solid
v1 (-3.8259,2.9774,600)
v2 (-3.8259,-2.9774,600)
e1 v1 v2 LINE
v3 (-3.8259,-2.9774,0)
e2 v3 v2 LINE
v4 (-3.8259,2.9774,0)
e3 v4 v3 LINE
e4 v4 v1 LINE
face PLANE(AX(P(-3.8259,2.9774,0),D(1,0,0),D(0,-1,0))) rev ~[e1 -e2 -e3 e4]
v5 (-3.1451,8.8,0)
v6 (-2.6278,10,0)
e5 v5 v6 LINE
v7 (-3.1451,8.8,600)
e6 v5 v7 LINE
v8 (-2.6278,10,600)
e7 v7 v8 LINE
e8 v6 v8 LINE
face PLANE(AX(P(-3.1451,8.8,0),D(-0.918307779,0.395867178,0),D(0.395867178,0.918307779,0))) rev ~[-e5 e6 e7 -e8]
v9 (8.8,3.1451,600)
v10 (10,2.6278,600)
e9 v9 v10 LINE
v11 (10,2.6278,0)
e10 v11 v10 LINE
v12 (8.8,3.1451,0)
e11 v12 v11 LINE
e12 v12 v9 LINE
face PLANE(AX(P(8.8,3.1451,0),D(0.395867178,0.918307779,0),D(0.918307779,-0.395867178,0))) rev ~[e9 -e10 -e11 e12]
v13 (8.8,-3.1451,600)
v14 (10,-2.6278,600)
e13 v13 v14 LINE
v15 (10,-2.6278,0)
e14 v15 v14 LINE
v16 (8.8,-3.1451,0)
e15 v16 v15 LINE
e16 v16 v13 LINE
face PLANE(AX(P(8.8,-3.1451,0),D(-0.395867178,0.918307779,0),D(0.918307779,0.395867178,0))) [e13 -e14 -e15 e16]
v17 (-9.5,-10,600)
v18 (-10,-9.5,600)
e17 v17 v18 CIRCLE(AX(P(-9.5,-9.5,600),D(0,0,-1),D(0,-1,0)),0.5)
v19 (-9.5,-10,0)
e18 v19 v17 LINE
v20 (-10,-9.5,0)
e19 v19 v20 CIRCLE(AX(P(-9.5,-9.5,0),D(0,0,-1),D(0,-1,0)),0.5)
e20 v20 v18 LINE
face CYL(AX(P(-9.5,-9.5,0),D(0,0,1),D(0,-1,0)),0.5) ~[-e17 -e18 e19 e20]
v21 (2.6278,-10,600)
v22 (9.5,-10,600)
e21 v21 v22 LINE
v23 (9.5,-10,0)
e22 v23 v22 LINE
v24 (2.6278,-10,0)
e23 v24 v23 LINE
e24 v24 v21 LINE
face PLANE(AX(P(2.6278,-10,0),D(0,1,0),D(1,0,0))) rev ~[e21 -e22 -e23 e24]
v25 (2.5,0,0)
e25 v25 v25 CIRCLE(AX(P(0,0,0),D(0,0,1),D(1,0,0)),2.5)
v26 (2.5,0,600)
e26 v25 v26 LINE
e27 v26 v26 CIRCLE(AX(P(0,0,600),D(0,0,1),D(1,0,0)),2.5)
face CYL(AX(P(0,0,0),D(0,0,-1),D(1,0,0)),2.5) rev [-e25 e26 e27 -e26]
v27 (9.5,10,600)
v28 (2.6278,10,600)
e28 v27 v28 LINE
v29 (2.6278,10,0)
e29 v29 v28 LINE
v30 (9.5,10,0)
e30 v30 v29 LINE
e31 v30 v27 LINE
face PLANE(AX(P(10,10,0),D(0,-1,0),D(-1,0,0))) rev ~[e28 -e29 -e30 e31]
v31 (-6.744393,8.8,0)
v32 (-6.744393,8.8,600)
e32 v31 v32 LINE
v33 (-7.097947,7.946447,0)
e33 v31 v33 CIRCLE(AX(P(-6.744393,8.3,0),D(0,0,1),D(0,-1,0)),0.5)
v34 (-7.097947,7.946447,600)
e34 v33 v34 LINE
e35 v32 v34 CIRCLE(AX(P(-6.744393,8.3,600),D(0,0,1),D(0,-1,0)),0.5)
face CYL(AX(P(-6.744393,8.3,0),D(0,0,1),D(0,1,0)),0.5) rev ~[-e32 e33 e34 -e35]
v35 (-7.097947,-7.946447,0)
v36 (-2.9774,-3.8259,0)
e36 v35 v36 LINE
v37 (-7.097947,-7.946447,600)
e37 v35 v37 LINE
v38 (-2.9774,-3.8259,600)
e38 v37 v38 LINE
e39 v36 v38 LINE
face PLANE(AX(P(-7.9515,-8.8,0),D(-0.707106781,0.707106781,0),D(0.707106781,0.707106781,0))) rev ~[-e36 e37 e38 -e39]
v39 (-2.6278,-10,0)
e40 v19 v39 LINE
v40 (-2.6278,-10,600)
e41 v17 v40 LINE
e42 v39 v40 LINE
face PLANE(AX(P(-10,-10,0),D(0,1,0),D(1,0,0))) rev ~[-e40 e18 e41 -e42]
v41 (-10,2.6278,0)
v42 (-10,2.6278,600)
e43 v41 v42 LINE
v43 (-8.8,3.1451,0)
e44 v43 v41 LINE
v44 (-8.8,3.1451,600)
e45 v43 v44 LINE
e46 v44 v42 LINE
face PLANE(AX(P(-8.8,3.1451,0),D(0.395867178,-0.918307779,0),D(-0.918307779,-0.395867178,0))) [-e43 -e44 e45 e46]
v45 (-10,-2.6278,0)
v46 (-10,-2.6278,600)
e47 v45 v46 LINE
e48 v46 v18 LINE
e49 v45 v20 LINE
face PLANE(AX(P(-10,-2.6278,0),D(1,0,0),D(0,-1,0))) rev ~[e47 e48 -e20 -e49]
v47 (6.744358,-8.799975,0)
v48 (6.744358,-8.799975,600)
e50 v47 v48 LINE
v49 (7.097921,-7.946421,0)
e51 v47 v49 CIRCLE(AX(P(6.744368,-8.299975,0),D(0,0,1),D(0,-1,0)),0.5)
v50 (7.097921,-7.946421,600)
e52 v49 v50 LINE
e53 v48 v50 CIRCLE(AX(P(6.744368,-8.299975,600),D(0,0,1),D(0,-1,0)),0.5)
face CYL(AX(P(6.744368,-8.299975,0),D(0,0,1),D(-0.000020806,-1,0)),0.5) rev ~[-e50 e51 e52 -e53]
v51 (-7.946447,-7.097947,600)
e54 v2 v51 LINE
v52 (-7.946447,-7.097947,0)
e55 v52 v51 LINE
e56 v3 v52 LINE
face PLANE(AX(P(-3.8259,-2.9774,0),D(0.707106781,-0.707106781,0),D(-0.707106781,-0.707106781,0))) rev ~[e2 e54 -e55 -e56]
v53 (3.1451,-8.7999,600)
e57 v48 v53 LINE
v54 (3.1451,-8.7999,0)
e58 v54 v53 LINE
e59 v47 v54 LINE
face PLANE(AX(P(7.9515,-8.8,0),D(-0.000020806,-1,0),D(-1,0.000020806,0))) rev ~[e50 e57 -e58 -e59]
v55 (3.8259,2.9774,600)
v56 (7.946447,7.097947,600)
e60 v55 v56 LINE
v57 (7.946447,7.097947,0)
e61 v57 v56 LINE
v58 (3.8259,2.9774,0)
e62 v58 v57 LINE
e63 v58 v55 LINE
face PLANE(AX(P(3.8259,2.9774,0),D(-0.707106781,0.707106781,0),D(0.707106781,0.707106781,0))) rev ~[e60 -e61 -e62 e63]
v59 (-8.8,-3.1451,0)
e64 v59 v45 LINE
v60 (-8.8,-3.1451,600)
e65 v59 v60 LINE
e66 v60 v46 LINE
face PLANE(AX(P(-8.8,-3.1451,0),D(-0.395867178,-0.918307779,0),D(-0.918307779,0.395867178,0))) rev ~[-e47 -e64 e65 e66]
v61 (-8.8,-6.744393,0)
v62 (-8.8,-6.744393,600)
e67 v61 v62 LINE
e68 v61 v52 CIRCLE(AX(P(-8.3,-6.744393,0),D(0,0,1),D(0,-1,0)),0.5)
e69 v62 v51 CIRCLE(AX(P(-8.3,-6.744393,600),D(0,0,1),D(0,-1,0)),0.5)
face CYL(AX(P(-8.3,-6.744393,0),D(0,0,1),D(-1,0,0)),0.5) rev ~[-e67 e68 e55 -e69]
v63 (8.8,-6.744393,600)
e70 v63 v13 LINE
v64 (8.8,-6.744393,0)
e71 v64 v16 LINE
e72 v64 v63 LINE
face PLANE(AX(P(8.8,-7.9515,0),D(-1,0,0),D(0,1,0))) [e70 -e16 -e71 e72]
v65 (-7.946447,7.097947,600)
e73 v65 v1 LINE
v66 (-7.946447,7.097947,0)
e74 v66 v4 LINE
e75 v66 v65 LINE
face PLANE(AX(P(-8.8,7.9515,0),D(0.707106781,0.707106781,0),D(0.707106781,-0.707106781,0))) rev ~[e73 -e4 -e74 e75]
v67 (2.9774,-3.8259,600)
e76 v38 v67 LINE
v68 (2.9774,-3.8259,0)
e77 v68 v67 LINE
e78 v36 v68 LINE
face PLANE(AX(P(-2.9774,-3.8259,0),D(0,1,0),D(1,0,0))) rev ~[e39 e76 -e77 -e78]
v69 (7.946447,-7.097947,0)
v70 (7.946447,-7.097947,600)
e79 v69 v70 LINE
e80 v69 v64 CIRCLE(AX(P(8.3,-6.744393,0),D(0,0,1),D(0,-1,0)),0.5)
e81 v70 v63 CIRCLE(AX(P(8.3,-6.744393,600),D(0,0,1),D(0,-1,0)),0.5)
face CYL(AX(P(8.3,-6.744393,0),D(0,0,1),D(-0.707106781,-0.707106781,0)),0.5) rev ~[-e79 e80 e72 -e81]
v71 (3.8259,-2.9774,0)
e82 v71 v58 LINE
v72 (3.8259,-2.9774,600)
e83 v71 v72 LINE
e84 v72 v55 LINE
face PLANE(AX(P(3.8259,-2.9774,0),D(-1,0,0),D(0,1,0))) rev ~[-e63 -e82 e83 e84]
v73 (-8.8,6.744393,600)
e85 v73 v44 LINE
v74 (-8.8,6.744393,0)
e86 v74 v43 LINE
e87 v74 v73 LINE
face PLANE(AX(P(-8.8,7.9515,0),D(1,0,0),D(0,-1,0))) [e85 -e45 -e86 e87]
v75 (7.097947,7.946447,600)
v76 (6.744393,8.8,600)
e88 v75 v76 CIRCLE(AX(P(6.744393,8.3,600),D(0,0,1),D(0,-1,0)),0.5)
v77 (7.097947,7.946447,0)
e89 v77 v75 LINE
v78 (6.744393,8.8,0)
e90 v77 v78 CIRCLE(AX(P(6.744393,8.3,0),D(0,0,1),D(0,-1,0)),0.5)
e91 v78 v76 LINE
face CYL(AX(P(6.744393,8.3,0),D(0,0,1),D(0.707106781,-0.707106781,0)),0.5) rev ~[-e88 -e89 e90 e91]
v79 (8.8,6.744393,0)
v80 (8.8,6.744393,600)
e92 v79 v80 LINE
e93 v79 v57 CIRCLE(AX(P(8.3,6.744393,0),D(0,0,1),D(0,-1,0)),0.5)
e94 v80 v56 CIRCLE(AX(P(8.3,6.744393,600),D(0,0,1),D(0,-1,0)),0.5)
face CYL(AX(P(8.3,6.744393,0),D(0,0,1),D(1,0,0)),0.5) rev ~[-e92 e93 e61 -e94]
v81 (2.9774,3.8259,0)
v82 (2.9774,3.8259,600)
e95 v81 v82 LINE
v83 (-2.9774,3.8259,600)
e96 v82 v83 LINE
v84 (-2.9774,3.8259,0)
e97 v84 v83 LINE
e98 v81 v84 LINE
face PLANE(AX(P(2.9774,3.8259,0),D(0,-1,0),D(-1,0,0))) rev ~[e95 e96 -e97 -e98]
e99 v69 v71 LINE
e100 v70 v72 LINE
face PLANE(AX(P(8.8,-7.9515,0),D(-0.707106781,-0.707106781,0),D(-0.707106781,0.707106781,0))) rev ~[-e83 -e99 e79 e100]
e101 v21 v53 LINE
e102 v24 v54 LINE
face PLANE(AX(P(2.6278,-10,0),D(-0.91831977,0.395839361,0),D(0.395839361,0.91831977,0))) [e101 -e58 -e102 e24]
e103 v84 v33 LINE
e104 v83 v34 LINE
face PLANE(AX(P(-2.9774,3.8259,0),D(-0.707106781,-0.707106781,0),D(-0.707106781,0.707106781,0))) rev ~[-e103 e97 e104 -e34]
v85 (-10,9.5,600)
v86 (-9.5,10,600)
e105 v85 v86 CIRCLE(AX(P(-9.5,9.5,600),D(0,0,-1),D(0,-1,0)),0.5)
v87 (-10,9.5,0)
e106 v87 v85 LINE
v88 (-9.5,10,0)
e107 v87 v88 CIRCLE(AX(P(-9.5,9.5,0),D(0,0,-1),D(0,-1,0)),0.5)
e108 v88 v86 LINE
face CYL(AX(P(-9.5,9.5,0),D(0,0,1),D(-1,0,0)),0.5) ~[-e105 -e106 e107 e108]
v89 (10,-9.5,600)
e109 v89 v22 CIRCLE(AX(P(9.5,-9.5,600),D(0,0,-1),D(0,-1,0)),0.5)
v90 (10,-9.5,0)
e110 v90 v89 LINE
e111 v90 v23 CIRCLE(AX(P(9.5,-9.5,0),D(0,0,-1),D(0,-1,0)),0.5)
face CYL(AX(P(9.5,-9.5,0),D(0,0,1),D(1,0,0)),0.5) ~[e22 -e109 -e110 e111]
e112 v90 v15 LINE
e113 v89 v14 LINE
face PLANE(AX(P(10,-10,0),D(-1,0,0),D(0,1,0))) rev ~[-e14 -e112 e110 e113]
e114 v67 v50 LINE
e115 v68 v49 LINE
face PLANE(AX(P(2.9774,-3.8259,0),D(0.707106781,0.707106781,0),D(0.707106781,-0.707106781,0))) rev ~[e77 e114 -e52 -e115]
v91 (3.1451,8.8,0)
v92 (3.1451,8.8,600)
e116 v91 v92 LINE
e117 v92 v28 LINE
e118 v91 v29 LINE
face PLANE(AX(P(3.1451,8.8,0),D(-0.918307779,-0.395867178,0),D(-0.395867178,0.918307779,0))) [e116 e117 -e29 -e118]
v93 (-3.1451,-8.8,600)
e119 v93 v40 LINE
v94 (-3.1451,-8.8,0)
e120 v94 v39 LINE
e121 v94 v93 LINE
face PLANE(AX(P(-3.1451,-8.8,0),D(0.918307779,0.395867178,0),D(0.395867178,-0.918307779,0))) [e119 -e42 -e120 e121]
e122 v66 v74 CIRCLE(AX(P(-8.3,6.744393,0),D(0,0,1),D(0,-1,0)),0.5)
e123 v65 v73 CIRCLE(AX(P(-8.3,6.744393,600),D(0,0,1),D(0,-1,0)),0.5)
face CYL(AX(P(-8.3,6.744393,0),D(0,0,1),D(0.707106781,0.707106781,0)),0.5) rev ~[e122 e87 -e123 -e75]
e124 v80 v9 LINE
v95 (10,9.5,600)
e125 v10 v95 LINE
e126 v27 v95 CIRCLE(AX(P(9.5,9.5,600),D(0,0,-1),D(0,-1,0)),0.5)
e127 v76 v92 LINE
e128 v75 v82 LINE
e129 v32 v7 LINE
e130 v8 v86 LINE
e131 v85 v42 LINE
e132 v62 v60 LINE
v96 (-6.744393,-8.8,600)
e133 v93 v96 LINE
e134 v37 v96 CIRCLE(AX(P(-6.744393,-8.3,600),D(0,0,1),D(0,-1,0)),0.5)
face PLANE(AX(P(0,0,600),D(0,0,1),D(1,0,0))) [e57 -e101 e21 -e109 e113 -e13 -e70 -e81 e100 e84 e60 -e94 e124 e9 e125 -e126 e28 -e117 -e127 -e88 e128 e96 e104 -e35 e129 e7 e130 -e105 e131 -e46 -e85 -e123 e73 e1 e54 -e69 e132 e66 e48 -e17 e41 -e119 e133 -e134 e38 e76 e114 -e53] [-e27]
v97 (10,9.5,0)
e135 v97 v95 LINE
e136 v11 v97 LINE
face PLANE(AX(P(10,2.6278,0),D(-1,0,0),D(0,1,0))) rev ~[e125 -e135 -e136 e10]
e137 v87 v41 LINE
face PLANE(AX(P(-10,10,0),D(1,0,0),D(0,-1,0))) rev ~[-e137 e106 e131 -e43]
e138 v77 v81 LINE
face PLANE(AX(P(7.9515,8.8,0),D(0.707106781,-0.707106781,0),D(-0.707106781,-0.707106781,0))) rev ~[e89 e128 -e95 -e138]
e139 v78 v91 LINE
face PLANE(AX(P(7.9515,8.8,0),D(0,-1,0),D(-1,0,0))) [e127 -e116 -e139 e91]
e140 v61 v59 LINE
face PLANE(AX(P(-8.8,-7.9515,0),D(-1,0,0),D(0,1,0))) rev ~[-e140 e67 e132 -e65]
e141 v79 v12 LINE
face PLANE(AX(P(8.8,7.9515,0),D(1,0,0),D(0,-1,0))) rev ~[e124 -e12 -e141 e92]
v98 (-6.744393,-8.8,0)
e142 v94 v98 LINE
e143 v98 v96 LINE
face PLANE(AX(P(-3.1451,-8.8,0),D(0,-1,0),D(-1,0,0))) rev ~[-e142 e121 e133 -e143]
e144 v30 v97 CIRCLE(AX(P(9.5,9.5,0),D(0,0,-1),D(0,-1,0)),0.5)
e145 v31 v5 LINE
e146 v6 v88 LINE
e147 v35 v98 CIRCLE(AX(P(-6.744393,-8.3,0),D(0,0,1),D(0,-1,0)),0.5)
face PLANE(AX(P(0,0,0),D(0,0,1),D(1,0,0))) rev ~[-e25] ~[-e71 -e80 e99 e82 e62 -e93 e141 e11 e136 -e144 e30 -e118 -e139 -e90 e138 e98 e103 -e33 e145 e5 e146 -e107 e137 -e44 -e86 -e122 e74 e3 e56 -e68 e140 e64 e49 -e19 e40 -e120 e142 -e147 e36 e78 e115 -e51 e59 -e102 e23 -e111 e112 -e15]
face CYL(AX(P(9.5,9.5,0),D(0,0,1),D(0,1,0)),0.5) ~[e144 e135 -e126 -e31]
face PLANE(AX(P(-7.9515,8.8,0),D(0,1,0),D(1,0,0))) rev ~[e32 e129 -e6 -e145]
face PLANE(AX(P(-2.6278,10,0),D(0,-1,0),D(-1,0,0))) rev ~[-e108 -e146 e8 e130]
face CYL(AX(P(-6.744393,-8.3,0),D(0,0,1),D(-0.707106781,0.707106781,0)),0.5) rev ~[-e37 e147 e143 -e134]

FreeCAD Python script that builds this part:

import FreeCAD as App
import Part
import Sketcher

V = App.Vector
Q = App.Units.Quantity


def edges_at(feature, points):
    """Names of the edges that pass closest to the given points."""
    edges = feature.Shape.Edges
    near = lambda p: min(range(len(edges)), key=lambda i: edges[i].distToShape(Part.Vertex(*p))[0])
    return sorted({f"Edge{near(p) + 1}" for p in points})


def add_polygon(sketch, points):
    """Adds a closed chain of lines whose ends are joined by coincident constraints."""
    first, n = sketch.GeometryCount, len(points)
    for a, b in zip(points, points[1:] + points[:1]):
        sketch.addGeometry(Part.LineSegment(App.Vector(*a, 0), App.Vector(*b, 0)), False)
    for i in range(n):
        sketch.addConstraint(Sketcher.Constraint("Coincident", first + i, 2, first + (i + 1) % n, 1))

doc = App.newDocument("Part")
body = doc.addObject("PartDesign::Body", "Body")

sketch1 = doc.addObject("Sketcher::SketchObject", "Sketch")
body.addObject(sketch1)
sketch1.AttachmentSupport = (doc.XY_Plane, [""])
sketch1.MapMode = "FlatFace"
add_polygon(sketch1, [(7.9515, 8.8), (2.9774, 3.8259), (-2.9774, 3.8259), (-7.9515, 8.8), (-3.1451, 8.8), (-2.6278, 10), (-10, 10), (-10, 2.6278), (-8.8, 3.1451), (-8.8, 7.9515), (-3.8259, 2.9774), (-3.8259, -2.9774), (-8.8, -7.9515), (-8.8, -3.1451), (-10, -2.6278), (-10, -10), (-2.6278, -10), (-3.1451, -8.8), (-7.9515, -8.8), (-2.9774, -3.8259), (2.9774, -3.8259), (7.9515, -8.8), (3.1451, -8.7999), (2.6278, -10), (10, -10), (10, -2.6278), (8.8, -3.1451), (8.8, -7.9515), (3.8259, -2.9774), (3.8259, 2.9774), (8.8, 7.9515), (8.8, 3.1451), (10, 2.6278), (10, 10), (2.6278, 10), (3.1451, 8.8)])
sketch1.addGeometry(Part.Circle(V(0, 0, 0), V(0, 0, 1), 2.5), False)
sketch1.addConstraint(Sketcher.Constraint("Horizontal", 1))
sketch1.addConstraint(Sketcher.Constraint("Horizontal", 3))
sketch1.addConstraint(Sketcher.Constraint("Horizontal", 5))
sketch1.addConstraint(Sketcher.Constraint("Vertical", 6))
sketch1.addConstraint(Sketcher.Constraint("Vertical", 8))
sketch1.addConstraint(Sketcher.Constraint("Vertical", 10))
sketch1.addConstraint(Sketcher.Constraint("Vertical", 12))
sketch1.addConstraint(Sketcher.Constraint("Vertical", 14))
sketch1.addConstraint(Sketcher.Constraint("Horizontal", 15))
sketch1.addConstraint(Sketcher.Constraint("Horizontal", 17))
sketch1.addConstraint(Sketcher.Constraint("Horizontal", 19))
sketch1.addConstraint(Sketcher.Constraint("Horizontal", 21))
sketch1.addConstraint(Sketcher.Constraint("Horizontal", 23))
sketch1.addConstraint(Sketcher.Constraint("Vertical", 24))
sketch1.addConstraint(Sketcher.Constraint("Vertical", 26))
sketch1.addConstraint(Sketcher.Constraint("Vertical", 28))
sketch1.addConstraint(Sketcher.Constraint("Vertical", 30))
sketch1.addConstraint(Sketcher.Constraint("Vertical", 32))
sketch1.addConstraint(Sketcher.Constraint("Horizontal", 33))
sketch1.addConstraint(Sketcher.Constraint("Horizontal", 35))
sketch1.addConstraint(Sketcher.Constraint("Coincident", 36, 3, -1, 1))
sketch1.addConstraint(Sketcher.Constraint("Symmetric", 0, 2, 18, 2, -1, 1))
sketch1.addConstraint(Sketcher.Constraint("Symmetric", 2, 2, 20, 2, -1, 1))
sketch1.addConstraint(Sketcher.Constraint("Symmetric", 4, 2, 22, 2, -1, 1))
sketch1.addConstraint(Sketcher.Constraint("Symmetric", 6, 2, 24, 2, -1, 1))
sketch1.addConstraint(Sketcher.Constraint("Symmetric", 7, 2, 25, 2, -1, 1))
sketch1.addConstraint(Sketcher.Constraint("Symmetric", 9, 2, 27, 2, -1, 1))
sketch1.addConstraint(Sketcher.Constraint("Symmetric", 11, 2, 29, 2, -1, 1))
sketch1.addConstraint(Sketcher.Constraint("Symmetric", 13, 2, 31, 2, -1, 1))
sketch1.addConstraint(Sketcher.Constraint("Symmetric", 15, 2, 33, 2, -1, 1))
sketch1.addConstraint(Sketcher.Constraint("Symmetric", 16, 2, 34, 2, -1, 1))
sketch1.addConstraint(Sketcher.Constraint("Symmetric", 17, 2, 20, 2, -2))
sketch1.addConstraint(Sketcher.Constraint("Symmetric", 15, 2, 22, 2, -2))
sketch1.addConstraint(Sketcher.Constraint("Symmetric", 13, 2, 24, 2, -2))
sketch1.addConstraint(Sketcher.Constraint("Symmetric", 12, 2, 25, 2, -2))
sketch1.addConstraint(Sketcher.Constraint("Perpendicular", 0, 2))
sketch1.addConstraint(Sketcher.Constraint("Parallel", 2, 9))
sketch1.addConstraint(Sketcher.Constraint("Perpendicular", 9, 11))
sketch1.addConstraint(Sketcher.Constraint("Perpendicular", 4, 13))
sketch1.addConstraint(Sketcher.Constraint("Perpendicular", 7, 16))
sketch1.addConstraint(Sketcher.Constraint("Parallel", 11, 18))
sketch1.addConstraint(Sketcher.Constraint("Perpendicular", 18, 20))
sketch1.addConstraint(Sketcher.Constraint("Perpendicular", 13, 22))
sketch1.addConstraint(Sketcher.Constraint("Parallel", 20, 27))
sketch1.addConstraint(Sketcher.Constraint("Perpendicular", 27, 29))
sketch1.addConstraint(Sketcher.Constraint("Perpendicular", 22, 31))
sketch1.addConstraint(Sketcher.Constraint("Horizontal", 11, 2, 26, 2))
sketch1.addConstraint(Sketcher.Constraint("Horizontal", 10, 2, 27, 2))
sketch1.addConstraint(Sketcher.Constraint("Equal", 33, 6))
sketch1.addConstraint(Sketcher.Constraint("Equal", 35, 8))
sketch1.addConstraint(Sketcher.Constraint("Equal", 19, 10))
sketch1.addConstraint(Sketcher.Constraint("Equal", 4, 7))
sketch1.addConstraint(Sketcher.Constraint("Equal", 2, 9))
sketch1.addConstraint(Sketcher.Constraint("Diameter", 36, 5.0))
sketch1.addConstraint(Sketcher.Constraint("DistanceY", 3, 2, 4, 2, 1.2))
sketch1.addConstraint(Sketcher.Constraint("DistanceY", -1, 1, 4, 2, 10.0))
sketch1.addConstraint(Sketcher.Constraint("Angle", 4, Q("66.68 deg")))
sketch1.addConstraint(Sketcher.Constraint("DistanceX", 1, 2, 1, 1, 5.9548))
sketch1.addConstraint(Sketcher.Constraint("DistanceX", 3, 1, 3, 2, 4.8064))
sketch1.addConstraint(Sketcher.Constraint("DistanceX", 5, 2, 5, 1, 7.3722))
pad1 = doc.addObject("PartDesign::Pad", "Pad")
body.addObject(pad1)
pad1.Profile = sketch1
pad1.Length = 600
doc.recompute()

fillet = doc.addObject("PartDesign::Fillet", "Fillet")
body.addObject(fillet)
fillet.Base = (pad1, edges_at(pad1, [
    (-10, 10, 300),
    (-7.952, 8.8, 300),
    (-8.8, 7.952, 300),
    (-10, -10, 300),
    (-7.952, -8.8, 300),
    (-8.8, -7.952, 300),
    (10, -10, 300),
    (7.952, -8.8, 300),
    (8.8, -7.952, 300),
    (7.952, 8.8, 300),
    (10, 10, 300),
    (8.8, 7.952, 300),
]))
fillet.Radius = 0.5

doc.recompute()
